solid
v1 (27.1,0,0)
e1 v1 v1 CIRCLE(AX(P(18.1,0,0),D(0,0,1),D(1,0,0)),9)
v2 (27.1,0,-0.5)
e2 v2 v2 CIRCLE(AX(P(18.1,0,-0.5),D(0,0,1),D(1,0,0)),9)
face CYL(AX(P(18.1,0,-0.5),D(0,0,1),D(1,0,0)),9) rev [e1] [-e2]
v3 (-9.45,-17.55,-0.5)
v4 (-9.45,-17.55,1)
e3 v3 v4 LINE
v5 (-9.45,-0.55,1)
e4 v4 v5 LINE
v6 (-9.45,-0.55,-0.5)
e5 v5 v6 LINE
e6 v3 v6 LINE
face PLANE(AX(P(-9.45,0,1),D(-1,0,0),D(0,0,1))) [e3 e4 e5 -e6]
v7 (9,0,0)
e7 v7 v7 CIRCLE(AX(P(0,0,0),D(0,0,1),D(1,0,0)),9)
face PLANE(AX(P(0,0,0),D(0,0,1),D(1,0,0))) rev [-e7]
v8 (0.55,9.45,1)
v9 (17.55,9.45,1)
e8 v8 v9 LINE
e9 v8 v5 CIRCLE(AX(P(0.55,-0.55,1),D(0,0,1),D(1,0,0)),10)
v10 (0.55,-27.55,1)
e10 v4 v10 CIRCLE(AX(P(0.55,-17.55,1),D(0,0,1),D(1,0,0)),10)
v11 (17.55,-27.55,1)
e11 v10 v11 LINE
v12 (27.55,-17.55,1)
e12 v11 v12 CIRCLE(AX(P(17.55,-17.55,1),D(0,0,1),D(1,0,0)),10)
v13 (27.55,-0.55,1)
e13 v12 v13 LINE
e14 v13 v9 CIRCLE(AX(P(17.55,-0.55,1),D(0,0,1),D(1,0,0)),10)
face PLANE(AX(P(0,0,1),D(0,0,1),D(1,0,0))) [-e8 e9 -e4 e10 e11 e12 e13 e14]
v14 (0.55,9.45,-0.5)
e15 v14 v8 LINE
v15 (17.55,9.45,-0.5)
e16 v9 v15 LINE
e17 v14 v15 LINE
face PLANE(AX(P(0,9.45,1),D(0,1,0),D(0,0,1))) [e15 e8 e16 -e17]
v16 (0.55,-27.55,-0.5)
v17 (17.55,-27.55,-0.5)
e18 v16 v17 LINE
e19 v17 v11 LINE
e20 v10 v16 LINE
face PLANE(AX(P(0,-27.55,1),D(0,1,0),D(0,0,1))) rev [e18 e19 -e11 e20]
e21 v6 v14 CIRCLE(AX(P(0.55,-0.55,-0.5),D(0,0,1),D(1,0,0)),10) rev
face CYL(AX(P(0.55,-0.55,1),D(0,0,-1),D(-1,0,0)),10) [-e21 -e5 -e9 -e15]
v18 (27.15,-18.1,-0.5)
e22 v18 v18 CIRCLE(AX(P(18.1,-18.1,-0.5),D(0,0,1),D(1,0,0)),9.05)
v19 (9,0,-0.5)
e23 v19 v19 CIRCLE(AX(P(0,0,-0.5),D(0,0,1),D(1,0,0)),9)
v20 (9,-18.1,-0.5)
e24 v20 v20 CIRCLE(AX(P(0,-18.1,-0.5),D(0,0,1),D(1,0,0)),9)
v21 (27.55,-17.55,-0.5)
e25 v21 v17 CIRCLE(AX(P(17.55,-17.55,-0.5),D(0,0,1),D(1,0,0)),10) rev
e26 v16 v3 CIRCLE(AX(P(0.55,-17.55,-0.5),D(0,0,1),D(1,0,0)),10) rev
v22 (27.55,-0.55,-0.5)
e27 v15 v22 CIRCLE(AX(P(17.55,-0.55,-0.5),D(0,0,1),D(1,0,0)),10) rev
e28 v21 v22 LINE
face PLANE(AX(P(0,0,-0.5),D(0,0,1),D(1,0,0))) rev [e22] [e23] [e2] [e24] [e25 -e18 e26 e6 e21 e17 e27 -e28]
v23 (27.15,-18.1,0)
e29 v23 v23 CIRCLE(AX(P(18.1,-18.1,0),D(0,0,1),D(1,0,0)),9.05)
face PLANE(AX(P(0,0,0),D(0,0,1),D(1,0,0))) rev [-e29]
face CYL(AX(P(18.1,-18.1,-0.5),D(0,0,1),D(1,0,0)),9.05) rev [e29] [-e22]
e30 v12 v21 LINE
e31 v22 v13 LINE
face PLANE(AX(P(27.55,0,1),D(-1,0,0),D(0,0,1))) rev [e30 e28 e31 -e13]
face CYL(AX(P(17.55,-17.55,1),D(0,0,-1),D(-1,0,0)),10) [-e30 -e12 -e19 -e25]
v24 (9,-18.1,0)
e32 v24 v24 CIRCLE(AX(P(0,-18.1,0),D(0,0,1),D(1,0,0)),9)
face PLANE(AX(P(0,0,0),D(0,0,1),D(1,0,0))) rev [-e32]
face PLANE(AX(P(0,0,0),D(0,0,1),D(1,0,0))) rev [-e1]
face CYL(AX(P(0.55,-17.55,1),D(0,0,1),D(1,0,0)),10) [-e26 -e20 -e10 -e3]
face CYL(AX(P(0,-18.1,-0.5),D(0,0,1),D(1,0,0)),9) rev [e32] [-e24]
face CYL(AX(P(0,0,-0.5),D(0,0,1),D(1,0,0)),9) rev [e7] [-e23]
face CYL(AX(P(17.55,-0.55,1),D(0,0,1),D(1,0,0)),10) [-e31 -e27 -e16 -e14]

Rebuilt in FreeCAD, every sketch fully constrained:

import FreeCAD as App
import Part
import Sketcher
from FreeCAD import Vector


def edges_at(feature, points):
    """Names of the edges that pass closest to the given points."""
    edges = feature.Shape.Edges
    near = lambda p: min(range(len(edges)), key=lambda i: edges[i].distToShape(Part.Vertex(*p))[0])
    return sorted({f"Edge{near(p) + 1}" for p in points})


def add_polygon(sketch, points):
    """Adds a closed chain of lines whose ends are joined by coincident constraints."""
    first, n = sketch.GeometryCount, len(points)
    for a, b in zip(points, points[1:] + points[:1]):
        sketch.addGeometry(Part.LineSegment(App.Vector(*a, 0), App.Vector(*b, 0)), False)
    for i in range(n):
        sketch.addConstraint(Sketcher.Constraint("Coincident", first + i, 2, first + (i + 1) % n, 1))

doc = App.newDocument("Part")
body = doc.addObject("PartDesign::Body", "Body")

# Sketch on XY plane
sketch1 = body.newObject("Sketcher::SketchObject", "Sketch")
sketch1.AttachmentSupport = (doc.getObject("XY_Plane"), [""])
sketch1.MapMode = "FlatFace"
add_polygon(sketch1, [(-9.45, 9.45), (-9.45, -27.55), (27.55, -27.55), (27.55, 9.45)])  # lines 0-3
sketch1.addConstraint([
    Sketcher.Constraint("Vertical", 0),
    Sketcher.Constraint("Horizontal", 1),
    Sketcher.Constraint("Vertical", 2),
    Sketcher.Constraint("Horizontal", 3),
    Sketcher.Constraint("Equal", 3, 0),
    Sketcher.Constraint("DistanceX", 1, 1, 1, 2, 37.0),
    Sketcher.Constraint("DistanceX", 0, 2, -1, 1, 9.45),
    Sketcher.Constraint("DistanceY", 0, 2, -1, 1, 27.55),
])
pad1 = body.newObject("PartDesign::Pad", "Pad")
pad1.Profile = sketch1
pad1.Length = 1

# Sketch on XY plane
sketch2 = body.newObject("Sketcher::SketchObject", "Sketch001")
sketch2.AttachmentSupport = (doc.getObject("XY_Plane"), [""])
sketch2.MapMode = "FlatFace"
add_polygon(sketch2, [(-9.45, 9.45), (-9.45, -27.55), (27.55, -27.55), (27.55, 9.45)])  # lines 0-3
sketch2.addGeometry(Part.Circle(Vector(0, -18.1, 0), Vector(0, 0, 1), 9), False)  # 4
sketch2.addGeometry(Part.Circle(Vector(18.1, -18.1, 0), Vector(0, 0, 1), 9.05), False)  # 5
sketch2.addGeometry(Part.Circle(Vector(0, 0, 0), Vector(0, 0, 1), 9), False)  # 6
sketch2.addGeometry(Part.Circle(Vector(18.1, 0, 0), Vector(0, 0, 1), 9), False)  # 7
sketch2.addConstraint([
    Sketcher.Constraint("Vertical", 0),
    Sketcher.Constraint("Horizontal", 1),
    Sketcher.Constraint("Vertical", 2),
    Sketcher.Constraint("Horizontal", 3),
    Sketcher.Constraint("Coincident", 6, 3, -1, 1),
    Sketcher.Constraint("Equal", 4, 6),
    Sketcher.Constraint("Equal", 6, 7),
    Sketcher.Constraint("PointOnObject", 4, 3, -2),
    Sketcher.Constraint("PointOnObject", 7, 3, -1),
    Sketcher.Constraint("Horizontal", 4, 3, 5, 3),
    Sketcher.Constraint("Vertical", 5, 3, 7, 3),
    Sketcher.Constraint("Equal", 3, 0),
    Sketcher.Constraint("Diameter", 4, 18.0),
    Sketcher.Constraint("Diameter", 5, 18.1),
    Sketcher.Constraint("DistanceX", 1, 1, 1, 2, 37.0),
    Sketcher.Constraint("DistanceY", 4, 3, -1, 1, 18.1),
    Sketcher.Constraint("DistanceX", -1, 1, 5, 3, 18.1),
    Sketcher.Constraint("DistanceX", 0, 2, -1, 1, 9.45),
    Sketcher.Constraint("DistanceY", 0, 2, -1, 1, 27.55),
])
pad2 = body.newObject("PartDesign::Pad", "Pad001")
pad2.Profile = sketch2
pad2.Length = 0.5
pad2.Reversed = True
doc.recompute()

fillet = body.newObject("PartDesign::Fillet", "Fillet")
fillet.Base = (pad2, edges_at(pad2, [
    (-9.45, -27.55, 0.25),
    (-9.45, 9.45, 0.25),
    (27.55, 9.45, 0.25),
    (27.55, -27.55, 0.25),
]))
fillet.Radius = 10

doc.recompute()
